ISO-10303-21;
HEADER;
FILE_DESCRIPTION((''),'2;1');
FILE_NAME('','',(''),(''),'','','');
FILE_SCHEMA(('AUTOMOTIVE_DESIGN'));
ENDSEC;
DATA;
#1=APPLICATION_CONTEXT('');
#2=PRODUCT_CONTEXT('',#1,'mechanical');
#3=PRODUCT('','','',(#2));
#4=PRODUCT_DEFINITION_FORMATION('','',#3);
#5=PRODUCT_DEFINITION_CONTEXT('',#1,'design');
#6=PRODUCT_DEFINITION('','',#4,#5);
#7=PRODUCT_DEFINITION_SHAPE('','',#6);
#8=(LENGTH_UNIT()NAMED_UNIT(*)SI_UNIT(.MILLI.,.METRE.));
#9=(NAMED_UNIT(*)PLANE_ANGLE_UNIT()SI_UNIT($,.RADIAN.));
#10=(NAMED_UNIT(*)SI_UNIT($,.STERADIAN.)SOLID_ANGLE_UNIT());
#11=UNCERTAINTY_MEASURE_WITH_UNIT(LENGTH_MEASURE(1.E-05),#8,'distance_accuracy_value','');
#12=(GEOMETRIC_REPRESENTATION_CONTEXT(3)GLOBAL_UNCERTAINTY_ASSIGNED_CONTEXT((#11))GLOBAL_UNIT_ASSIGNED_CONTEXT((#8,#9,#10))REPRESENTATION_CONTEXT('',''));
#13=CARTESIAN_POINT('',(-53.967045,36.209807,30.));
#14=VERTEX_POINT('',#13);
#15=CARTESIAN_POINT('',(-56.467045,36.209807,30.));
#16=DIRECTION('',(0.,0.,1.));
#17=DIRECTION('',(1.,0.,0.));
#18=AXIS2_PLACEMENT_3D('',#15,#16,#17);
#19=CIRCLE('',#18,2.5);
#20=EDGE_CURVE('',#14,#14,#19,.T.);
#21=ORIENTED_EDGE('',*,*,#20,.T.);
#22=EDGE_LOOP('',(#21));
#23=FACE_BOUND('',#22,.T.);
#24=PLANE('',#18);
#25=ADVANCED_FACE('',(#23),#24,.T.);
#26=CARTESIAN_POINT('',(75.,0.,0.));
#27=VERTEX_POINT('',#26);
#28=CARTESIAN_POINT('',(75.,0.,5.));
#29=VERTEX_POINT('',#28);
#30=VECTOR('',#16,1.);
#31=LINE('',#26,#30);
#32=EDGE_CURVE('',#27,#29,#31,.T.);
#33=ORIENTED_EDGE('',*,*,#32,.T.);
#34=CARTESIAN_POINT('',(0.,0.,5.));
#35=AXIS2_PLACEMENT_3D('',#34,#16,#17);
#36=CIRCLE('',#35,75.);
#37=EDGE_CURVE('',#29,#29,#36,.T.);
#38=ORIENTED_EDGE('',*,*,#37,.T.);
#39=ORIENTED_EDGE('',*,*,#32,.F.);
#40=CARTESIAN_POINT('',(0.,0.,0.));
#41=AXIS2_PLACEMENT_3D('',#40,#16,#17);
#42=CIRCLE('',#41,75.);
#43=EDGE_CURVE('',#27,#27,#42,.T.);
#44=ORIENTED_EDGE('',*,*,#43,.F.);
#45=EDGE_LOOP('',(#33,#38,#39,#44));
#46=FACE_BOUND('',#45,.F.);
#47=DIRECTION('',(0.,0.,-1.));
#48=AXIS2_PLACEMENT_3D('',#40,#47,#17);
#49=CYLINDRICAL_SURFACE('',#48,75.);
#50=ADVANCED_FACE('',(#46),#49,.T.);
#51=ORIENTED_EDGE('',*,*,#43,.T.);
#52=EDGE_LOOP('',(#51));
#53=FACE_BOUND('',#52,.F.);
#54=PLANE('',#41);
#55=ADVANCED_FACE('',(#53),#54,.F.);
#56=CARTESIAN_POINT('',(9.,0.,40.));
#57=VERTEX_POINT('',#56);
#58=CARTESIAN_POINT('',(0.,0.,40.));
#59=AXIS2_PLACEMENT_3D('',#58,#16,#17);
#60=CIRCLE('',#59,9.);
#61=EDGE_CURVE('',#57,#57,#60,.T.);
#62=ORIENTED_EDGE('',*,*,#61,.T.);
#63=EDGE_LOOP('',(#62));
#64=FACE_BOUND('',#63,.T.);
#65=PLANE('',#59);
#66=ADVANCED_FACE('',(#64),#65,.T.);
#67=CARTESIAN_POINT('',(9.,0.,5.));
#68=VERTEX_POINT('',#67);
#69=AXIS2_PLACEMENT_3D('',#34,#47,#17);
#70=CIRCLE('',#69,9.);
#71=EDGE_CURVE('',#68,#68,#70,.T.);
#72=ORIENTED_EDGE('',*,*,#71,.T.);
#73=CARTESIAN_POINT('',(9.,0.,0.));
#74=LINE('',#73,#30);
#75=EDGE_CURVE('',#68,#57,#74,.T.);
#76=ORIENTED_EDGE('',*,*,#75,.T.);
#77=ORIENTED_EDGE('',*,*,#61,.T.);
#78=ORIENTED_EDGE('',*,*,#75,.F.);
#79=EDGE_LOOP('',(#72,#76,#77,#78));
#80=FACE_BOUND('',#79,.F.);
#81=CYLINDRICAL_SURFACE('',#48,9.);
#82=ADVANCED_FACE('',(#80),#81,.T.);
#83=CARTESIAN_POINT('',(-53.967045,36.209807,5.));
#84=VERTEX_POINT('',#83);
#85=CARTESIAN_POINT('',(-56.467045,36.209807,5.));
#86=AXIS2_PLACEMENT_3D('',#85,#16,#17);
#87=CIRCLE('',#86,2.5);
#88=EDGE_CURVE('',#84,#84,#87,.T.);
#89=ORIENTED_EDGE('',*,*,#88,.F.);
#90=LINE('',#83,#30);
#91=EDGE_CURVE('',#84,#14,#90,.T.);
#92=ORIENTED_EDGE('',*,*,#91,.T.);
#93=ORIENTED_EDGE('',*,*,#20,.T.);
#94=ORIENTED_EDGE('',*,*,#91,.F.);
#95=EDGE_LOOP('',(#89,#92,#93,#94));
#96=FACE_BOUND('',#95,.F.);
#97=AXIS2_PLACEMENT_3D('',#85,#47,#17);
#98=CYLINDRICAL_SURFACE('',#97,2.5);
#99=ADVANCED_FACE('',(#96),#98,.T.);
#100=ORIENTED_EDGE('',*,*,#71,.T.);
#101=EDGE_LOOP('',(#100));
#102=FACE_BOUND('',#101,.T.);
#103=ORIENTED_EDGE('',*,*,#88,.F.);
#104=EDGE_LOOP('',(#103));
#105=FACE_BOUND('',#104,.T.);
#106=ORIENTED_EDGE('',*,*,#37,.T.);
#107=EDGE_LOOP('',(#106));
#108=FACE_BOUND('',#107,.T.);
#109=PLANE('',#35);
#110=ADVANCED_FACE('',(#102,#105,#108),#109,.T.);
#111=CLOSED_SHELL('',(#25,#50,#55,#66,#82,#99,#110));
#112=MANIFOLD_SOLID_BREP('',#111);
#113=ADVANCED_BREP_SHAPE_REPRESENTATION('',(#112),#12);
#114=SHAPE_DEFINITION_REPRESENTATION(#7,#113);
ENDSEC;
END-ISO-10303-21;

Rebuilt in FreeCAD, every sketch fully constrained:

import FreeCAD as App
import Part
import Sketcher

V = App.Vector

doc = App.newDocument("Part")
body = doc.addObject("PartDesign::Body", "Body")

# Sketch on XY plane
sketch1 = body.newObject("Sketcher::SketchObject", "Sketch")
sketch1.AttachmentSupport = (doc.getObject("XY_Plane"), [""])
sketch1.MapMode = "FlatFace"
sketch1.addGeometry(Part.Circle(V(0, 0, 0), V(0, 0, 1), 9), False)
sketch1.addConstraint([
    Sketcher.Constraint("Coincident", 0, 3, -1, 1),
    Sketcher.Constraint("Diameter", 0, 18.0),
])
pad1 = body.newObject("PartDesign::Pad", "Pad")
pad1.Profile = sketch1
pad1.Length = 40

# Sketch on XY plane
sketch2 = body.newObject("Sketcher::SketchObject", "Sketch001")
sketch2.AttachmentSupport = (doc.getObject("XY_Plane"), [""])
sketch2.MapMode = "FlatFace"
sketch2.addGeometry(Part.Circle(V(0, 0, 0), V(0, 0, 1), 75), False)
sketch2.addConstraint([
    Sketcher.Constraint("Coincident", 0, 3, -1, 1),
    Sketcher.Constraint("Diameter", 0, 150.0),
])
pad2 = body.newObject("PartDesign::Pad", "Pad001")
pad2.Profile = sketch2
pad2.Length = 5

# Sketch on XY plane
sketch3 = body.newObject("Sketcher::SketchObject", "Sketch002")
sketch3.AttachmentSupport = (doc.getObject("XY_Plane"), [""])
sketch3.MapMode = "FlatFace"
sketch3.AttachmentOffset = App.Placement(V(0, 0, 5), App.Rotation())
sketch3.addGeometry(Part.Circle(V(-56.5, 36.2, 0), V(0, 0, 1), 2.5), False)
sketch3.addConstraint([
    Sketcher.Constraint("Diameter", 0, 5.0),
    Sketcher.Constraint("DistanceX", 0, 3, -1, 1, 56.467045),
    Sketcher.Constraint("DistanceY", -1, 1, 0, 3, 36.209807),
])
pad3 = body.newObject("PartDesign::Pad", "Pad002")
pad3.Profile = sketch3
pad3.Length = 25

doc.recompute()
